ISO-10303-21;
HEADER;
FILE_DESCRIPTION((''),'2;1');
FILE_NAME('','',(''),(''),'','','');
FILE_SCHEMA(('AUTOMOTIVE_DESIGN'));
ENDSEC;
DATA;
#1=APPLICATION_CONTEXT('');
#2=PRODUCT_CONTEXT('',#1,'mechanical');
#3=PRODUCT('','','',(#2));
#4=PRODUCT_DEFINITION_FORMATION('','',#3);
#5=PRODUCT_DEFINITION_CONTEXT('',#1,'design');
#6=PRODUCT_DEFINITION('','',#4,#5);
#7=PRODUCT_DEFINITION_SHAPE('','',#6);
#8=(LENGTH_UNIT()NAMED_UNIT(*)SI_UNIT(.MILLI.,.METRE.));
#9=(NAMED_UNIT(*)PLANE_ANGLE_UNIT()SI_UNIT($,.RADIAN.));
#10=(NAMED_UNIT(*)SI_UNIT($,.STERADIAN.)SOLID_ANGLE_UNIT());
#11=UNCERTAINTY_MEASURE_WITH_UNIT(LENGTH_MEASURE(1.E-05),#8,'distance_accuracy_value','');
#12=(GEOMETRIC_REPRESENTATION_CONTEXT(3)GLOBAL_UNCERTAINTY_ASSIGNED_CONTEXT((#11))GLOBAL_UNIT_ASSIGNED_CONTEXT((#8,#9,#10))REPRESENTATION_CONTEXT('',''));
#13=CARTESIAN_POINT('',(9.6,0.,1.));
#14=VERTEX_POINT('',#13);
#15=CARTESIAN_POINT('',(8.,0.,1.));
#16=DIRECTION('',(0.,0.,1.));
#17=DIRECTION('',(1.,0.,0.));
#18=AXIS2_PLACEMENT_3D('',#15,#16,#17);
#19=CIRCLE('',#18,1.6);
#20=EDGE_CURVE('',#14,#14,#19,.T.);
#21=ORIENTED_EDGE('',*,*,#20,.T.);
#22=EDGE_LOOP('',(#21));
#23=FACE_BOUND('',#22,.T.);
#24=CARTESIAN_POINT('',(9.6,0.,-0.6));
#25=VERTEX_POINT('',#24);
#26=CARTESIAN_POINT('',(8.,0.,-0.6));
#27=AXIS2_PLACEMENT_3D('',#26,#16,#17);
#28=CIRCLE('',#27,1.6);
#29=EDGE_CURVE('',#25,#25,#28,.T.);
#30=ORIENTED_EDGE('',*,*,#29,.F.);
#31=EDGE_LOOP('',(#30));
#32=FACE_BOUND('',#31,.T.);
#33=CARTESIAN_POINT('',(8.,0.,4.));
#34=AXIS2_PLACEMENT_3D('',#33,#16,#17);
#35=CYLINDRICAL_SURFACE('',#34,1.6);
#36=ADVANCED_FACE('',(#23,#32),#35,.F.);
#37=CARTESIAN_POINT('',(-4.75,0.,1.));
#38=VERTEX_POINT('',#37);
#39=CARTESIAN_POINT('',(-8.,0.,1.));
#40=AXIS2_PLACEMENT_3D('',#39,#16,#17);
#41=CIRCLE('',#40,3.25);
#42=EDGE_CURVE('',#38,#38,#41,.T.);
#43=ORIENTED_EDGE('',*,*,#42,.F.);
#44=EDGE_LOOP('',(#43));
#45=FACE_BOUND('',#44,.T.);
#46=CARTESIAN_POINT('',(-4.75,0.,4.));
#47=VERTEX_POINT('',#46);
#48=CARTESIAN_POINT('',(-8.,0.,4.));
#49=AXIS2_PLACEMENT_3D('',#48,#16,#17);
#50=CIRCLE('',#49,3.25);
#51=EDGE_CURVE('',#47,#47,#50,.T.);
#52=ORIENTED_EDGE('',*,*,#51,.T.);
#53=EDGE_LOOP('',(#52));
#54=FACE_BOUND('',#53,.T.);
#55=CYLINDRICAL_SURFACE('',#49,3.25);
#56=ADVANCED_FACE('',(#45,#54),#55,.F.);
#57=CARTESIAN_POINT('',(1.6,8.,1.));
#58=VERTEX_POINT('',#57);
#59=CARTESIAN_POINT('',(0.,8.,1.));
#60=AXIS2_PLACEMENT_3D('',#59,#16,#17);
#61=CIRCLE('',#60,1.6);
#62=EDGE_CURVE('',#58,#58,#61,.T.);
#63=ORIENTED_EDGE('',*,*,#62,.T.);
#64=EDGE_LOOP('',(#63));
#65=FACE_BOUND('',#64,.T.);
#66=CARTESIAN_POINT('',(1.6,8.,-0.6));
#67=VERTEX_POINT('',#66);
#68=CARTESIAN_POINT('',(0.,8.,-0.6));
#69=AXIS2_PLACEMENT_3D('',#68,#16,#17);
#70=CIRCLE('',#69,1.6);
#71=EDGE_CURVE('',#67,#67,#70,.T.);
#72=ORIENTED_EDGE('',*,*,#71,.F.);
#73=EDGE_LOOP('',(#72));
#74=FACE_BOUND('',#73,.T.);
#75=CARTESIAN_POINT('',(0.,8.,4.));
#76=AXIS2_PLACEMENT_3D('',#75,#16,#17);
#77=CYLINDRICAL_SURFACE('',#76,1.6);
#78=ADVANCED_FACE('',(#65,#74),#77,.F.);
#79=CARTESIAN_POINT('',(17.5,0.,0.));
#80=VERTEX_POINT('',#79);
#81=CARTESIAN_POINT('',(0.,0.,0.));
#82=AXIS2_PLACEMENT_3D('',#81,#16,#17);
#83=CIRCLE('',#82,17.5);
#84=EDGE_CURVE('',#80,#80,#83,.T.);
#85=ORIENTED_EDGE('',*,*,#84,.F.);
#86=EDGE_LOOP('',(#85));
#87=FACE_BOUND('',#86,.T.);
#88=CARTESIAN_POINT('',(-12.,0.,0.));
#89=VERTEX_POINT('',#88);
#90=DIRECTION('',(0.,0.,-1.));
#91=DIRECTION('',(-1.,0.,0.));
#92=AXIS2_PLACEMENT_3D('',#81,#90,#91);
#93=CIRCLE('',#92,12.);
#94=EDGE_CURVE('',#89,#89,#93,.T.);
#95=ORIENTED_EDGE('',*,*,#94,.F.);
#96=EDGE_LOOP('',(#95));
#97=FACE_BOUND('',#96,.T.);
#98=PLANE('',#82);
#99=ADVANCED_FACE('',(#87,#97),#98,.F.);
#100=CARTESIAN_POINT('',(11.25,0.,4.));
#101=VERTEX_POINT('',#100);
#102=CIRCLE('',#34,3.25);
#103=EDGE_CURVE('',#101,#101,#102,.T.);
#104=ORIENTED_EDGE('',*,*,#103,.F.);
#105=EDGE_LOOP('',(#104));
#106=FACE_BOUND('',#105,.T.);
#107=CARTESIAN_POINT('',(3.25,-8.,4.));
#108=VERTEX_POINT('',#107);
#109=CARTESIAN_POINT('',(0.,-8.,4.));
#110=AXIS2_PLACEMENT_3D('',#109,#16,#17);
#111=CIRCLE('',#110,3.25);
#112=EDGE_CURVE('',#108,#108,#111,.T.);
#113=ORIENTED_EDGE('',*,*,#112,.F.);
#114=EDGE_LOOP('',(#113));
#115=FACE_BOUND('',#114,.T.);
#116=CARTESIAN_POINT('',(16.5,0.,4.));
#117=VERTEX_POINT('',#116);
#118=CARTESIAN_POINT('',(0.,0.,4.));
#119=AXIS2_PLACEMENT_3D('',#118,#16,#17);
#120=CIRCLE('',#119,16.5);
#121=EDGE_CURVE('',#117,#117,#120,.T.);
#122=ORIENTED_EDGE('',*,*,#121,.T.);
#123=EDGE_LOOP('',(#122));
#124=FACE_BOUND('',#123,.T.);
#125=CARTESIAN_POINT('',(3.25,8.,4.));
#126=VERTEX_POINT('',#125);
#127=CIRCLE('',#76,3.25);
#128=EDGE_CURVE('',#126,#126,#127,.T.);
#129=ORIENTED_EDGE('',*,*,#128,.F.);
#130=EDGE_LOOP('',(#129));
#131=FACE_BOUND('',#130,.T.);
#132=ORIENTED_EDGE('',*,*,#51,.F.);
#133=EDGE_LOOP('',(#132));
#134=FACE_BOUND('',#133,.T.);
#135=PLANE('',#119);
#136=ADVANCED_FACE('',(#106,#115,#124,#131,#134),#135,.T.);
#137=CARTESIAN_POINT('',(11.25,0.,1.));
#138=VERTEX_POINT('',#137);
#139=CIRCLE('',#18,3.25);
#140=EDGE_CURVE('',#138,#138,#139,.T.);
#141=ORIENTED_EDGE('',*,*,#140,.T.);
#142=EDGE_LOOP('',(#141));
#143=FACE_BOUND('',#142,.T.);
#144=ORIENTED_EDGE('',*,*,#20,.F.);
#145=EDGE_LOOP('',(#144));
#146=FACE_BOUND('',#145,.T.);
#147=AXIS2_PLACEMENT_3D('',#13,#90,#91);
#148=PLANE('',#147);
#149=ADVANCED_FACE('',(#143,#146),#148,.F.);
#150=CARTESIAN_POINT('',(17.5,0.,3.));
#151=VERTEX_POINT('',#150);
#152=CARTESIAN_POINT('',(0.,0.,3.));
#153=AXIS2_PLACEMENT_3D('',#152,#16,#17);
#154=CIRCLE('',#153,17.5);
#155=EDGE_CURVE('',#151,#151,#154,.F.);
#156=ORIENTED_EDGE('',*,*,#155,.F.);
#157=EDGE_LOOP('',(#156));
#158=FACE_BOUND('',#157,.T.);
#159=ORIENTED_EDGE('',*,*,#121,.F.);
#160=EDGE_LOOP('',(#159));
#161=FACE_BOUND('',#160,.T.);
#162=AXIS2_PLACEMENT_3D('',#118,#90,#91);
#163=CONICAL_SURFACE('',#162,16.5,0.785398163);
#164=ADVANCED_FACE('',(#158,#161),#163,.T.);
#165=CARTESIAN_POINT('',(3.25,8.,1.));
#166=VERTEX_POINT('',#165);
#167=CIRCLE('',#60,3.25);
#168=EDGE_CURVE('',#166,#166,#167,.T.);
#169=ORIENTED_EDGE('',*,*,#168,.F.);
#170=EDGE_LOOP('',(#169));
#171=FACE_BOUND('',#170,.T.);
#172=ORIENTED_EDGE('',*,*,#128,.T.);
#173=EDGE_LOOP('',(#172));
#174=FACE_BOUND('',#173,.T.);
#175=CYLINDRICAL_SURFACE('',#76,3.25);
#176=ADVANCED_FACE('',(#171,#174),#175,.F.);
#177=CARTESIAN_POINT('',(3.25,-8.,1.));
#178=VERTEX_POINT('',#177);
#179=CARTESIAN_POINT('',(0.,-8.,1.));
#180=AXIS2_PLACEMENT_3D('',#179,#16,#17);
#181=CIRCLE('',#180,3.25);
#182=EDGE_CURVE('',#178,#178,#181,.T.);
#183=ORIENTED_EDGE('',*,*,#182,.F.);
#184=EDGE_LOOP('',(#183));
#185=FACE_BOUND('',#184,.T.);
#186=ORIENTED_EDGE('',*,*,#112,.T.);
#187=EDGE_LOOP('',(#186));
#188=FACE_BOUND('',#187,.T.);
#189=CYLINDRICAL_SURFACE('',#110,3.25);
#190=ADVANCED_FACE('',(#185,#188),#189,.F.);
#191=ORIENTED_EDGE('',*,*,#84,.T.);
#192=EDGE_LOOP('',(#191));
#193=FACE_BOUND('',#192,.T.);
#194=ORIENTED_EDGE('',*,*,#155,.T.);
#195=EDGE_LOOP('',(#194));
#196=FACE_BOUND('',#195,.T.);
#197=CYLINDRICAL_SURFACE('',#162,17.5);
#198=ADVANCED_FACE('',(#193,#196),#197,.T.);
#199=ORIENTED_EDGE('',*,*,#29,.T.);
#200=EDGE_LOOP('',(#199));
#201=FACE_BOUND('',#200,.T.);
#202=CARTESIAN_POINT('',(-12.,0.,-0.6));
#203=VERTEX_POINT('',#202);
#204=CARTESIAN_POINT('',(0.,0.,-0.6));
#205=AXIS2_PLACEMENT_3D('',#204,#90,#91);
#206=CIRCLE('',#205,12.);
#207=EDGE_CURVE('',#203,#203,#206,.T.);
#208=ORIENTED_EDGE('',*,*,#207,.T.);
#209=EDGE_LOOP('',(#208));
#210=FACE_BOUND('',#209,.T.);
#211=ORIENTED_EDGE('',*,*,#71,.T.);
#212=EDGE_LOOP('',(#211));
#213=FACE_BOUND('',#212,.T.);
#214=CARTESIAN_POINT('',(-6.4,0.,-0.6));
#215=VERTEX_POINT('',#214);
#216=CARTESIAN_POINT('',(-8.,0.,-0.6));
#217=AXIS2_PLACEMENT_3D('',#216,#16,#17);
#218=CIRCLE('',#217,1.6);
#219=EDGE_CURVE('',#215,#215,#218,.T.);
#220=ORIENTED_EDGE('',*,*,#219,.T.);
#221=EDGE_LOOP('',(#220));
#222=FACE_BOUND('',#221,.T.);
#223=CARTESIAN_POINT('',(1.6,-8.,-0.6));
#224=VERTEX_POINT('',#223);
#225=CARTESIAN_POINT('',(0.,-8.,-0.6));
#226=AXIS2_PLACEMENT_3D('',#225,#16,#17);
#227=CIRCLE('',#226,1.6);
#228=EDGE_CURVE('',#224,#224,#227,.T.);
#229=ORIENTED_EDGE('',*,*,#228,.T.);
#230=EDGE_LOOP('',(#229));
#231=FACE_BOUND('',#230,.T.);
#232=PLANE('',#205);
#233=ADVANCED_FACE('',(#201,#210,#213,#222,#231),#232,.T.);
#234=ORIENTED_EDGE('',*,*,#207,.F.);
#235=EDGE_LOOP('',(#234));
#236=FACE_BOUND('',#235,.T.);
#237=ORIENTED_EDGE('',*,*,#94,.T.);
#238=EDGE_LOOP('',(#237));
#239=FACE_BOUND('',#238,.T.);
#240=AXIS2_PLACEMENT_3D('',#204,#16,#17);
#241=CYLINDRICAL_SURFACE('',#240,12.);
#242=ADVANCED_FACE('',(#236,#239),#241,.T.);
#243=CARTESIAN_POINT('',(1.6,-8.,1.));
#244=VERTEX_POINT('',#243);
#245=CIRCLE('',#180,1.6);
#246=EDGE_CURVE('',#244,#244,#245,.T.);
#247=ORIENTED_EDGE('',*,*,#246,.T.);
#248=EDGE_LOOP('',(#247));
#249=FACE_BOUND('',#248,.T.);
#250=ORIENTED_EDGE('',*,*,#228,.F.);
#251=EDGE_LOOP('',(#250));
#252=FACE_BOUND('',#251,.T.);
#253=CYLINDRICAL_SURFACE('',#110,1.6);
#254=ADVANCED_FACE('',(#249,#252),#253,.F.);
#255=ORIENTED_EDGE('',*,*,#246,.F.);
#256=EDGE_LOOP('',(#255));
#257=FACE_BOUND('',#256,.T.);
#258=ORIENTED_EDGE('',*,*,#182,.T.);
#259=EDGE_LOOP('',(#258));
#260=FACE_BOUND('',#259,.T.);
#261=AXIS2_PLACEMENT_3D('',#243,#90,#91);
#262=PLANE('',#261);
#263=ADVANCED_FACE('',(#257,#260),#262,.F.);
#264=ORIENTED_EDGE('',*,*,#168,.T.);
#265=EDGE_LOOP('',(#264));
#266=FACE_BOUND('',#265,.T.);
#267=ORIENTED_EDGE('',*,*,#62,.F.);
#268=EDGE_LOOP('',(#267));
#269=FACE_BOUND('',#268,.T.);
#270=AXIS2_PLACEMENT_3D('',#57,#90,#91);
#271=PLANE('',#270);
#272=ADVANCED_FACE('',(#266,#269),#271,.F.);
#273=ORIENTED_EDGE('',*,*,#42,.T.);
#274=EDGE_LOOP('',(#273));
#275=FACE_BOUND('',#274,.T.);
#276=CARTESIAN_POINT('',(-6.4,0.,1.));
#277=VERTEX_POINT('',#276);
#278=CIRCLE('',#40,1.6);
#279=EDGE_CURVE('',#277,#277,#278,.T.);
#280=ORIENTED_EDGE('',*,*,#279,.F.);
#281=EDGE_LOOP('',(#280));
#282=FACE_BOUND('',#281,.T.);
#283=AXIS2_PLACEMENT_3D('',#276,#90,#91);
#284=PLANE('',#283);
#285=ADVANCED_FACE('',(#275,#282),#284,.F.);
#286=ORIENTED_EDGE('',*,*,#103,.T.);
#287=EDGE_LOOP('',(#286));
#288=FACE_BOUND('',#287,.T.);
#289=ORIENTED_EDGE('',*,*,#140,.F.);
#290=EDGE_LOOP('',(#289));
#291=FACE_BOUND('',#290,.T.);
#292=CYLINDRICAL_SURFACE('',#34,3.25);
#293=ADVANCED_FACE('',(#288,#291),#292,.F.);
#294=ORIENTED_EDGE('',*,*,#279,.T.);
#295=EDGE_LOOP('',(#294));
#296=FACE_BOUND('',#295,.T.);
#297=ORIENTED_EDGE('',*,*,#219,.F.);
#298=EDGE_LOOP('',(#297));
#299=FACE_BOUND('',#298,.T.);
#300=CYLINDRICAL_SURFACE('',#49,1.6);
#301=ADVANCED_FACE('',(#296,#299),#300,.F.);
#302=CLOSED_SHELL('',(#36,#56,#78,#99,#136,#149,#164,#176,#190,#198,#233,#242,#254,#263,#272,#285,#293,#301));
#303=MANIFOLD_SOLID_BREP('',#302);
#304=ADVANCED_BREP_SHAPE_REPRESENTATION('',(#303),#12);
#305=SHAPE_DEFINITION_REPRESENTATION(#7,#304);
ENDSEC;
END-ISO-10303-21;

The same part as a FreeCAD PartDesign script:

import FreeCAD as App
import Part
import Sketcher

V = App.Vector


def edges_at(feature, points):
    """Names of the edges that pass closest to the given points."""
    edges = feature.Shape.Edges
    near = lambda p: min(range(len(edges)), key=lambda i: edges[i].distToShape(Part.Vertex(*p))[0])
    return sorted({f"Edge{near(p) + 1}" for p in points})

doc = App.newDocument("Part")
body = doc.addObject("PartDesign::Body", "Body")

# Sketch on XY plane
sketch1 = doc.addObject("Sketcher::SketchObject", "Sketch")
body.addObject(sketch1)
sketch1.AttachmentSupport = (doc.XY_Plane, [""])
sketch1.MapMode = "FlatFace"
sketch1.addGeometry(Part.Circle(V(0, 0, 0), V(0, 0, 1), 18), False)
sketch1.addConstraint(Sketcher.Constraint("Coincident", 0, 3, -1, 1))
sketch1.addConstraint(Sketcher.Constraint("Diameter", 0, 35.0))
pad1 = doc.addObject("PartDesign::Pad", "Pad")
body.addObject(pad1)
pad1.Profile = sketch1
pad1.Length = 4

# Sketch on XY plane
sketch2 = doc.addObject("Sketcher::SketchObject", "Sketch001")
body.addObject(sketch2)
sketch2.AttachmentSupport = (doc.XY_Plane, [""])
sketch2.MapMode = "FlatFace"
sketch2.addGeometry(Part.Circle(V(0, 0, 0), V(0, 0, 1), 12), False)
sketch2.addConstraint(Sketcher.Constraint("Coincident", 0, 3, -1, 1))
sketch2.addConstraint(Sketcher.Constraint("Diameter", 0, 24.0))
pad2 = doc.addObject("PartDesign::Pad", "Pad001")
body.addObject(pad2)
pad2.Profile = sketch2
pad2.Length = 0.6
pad2.Reversed = True

# Sketch on XY plane
sketch3 = doc.addObject("Sketcher::SketchObject", "Sketch002")
body.addObject(sketch3)
sketch3.AttachmentSupport = (doc.XY_Plane, [""])
sketch3.MapMode = "FlatFace"
sketch3.AttachmentOffset = App.Placement(V(0, 0, 4), App.Rotation())
sketch3.addGeometry(Part.Circle(V(0, 8, 0), V(0, 0, 1), 1.6), False)
sketch3.addGeometry(Part.Circle(V(8, 0, 0), V(0, 0, 1), 1.6), False)
sketch3.addGeometry(Part.Circle(V(0, -8, 0), V(0, 0, 1), 1.6), False)
sketch3.addGeometry(Part.Circle(V(-8, 0, 0), V(0, 0, 1), 1.6), False)
sketch3.addConstraint(Sketcher.Constraint("Equal", 0, 1))
sketch3.addConstraint(Sketcher.Constraint("Equal", 1, 2))
sketch3.addConstraint(Sketcher.Constraint("Equal", 2, 3))
sketch3.addConstraint(Sketcher.Constraint("Symmetric", 0, 3, 2, 3, -1, 1))
sketch3.addConstraint(Sketcher.Constraint("Symmetric", 1, 3, 3, 3, -1, 1))
sketch3.addConstraint(Sketcher.Constraint("PointOnObject", 0, 3, -2))
sketch3.addConstraint(Sketcher.Constraint("PointOnObject", 1, 3, -1))
sketch3.addConstraint(Sketcher.Constraint("Diameter", 0, 3.2))
sketch3.addConstraint(Sketcher.Constraint("DistanceY", -1, 1, 0, 3, 8.0))
sketch3.addConstraint(Sketcher.Constraint("DistanceX", -1, 1, 1, 3, 8.0))
doc.recompute()
hole = doc.addObject("PartDesign::Hole", "Hole")
body.addObject(hole)
hole.Profile = sketch3
hole.ThreadType = "None"
hole.Diameter = 3.2
hole.DepthType = "ThroughAll"
hole.HoleCutType = "Counterbore"
hole.HoleCutDiameter = 6.5
hole.HoleCutDepth = 3
doc.recompute()

chamfer = doc.addObject("PartDesign::Chamfer", "Chamfer")
body.addObject(chamfer)
chamfer.Base = (hole, edges_at(hole, [(-17.5, 0, 4)]))
chamfer.Size = 1

doc.recompute()
